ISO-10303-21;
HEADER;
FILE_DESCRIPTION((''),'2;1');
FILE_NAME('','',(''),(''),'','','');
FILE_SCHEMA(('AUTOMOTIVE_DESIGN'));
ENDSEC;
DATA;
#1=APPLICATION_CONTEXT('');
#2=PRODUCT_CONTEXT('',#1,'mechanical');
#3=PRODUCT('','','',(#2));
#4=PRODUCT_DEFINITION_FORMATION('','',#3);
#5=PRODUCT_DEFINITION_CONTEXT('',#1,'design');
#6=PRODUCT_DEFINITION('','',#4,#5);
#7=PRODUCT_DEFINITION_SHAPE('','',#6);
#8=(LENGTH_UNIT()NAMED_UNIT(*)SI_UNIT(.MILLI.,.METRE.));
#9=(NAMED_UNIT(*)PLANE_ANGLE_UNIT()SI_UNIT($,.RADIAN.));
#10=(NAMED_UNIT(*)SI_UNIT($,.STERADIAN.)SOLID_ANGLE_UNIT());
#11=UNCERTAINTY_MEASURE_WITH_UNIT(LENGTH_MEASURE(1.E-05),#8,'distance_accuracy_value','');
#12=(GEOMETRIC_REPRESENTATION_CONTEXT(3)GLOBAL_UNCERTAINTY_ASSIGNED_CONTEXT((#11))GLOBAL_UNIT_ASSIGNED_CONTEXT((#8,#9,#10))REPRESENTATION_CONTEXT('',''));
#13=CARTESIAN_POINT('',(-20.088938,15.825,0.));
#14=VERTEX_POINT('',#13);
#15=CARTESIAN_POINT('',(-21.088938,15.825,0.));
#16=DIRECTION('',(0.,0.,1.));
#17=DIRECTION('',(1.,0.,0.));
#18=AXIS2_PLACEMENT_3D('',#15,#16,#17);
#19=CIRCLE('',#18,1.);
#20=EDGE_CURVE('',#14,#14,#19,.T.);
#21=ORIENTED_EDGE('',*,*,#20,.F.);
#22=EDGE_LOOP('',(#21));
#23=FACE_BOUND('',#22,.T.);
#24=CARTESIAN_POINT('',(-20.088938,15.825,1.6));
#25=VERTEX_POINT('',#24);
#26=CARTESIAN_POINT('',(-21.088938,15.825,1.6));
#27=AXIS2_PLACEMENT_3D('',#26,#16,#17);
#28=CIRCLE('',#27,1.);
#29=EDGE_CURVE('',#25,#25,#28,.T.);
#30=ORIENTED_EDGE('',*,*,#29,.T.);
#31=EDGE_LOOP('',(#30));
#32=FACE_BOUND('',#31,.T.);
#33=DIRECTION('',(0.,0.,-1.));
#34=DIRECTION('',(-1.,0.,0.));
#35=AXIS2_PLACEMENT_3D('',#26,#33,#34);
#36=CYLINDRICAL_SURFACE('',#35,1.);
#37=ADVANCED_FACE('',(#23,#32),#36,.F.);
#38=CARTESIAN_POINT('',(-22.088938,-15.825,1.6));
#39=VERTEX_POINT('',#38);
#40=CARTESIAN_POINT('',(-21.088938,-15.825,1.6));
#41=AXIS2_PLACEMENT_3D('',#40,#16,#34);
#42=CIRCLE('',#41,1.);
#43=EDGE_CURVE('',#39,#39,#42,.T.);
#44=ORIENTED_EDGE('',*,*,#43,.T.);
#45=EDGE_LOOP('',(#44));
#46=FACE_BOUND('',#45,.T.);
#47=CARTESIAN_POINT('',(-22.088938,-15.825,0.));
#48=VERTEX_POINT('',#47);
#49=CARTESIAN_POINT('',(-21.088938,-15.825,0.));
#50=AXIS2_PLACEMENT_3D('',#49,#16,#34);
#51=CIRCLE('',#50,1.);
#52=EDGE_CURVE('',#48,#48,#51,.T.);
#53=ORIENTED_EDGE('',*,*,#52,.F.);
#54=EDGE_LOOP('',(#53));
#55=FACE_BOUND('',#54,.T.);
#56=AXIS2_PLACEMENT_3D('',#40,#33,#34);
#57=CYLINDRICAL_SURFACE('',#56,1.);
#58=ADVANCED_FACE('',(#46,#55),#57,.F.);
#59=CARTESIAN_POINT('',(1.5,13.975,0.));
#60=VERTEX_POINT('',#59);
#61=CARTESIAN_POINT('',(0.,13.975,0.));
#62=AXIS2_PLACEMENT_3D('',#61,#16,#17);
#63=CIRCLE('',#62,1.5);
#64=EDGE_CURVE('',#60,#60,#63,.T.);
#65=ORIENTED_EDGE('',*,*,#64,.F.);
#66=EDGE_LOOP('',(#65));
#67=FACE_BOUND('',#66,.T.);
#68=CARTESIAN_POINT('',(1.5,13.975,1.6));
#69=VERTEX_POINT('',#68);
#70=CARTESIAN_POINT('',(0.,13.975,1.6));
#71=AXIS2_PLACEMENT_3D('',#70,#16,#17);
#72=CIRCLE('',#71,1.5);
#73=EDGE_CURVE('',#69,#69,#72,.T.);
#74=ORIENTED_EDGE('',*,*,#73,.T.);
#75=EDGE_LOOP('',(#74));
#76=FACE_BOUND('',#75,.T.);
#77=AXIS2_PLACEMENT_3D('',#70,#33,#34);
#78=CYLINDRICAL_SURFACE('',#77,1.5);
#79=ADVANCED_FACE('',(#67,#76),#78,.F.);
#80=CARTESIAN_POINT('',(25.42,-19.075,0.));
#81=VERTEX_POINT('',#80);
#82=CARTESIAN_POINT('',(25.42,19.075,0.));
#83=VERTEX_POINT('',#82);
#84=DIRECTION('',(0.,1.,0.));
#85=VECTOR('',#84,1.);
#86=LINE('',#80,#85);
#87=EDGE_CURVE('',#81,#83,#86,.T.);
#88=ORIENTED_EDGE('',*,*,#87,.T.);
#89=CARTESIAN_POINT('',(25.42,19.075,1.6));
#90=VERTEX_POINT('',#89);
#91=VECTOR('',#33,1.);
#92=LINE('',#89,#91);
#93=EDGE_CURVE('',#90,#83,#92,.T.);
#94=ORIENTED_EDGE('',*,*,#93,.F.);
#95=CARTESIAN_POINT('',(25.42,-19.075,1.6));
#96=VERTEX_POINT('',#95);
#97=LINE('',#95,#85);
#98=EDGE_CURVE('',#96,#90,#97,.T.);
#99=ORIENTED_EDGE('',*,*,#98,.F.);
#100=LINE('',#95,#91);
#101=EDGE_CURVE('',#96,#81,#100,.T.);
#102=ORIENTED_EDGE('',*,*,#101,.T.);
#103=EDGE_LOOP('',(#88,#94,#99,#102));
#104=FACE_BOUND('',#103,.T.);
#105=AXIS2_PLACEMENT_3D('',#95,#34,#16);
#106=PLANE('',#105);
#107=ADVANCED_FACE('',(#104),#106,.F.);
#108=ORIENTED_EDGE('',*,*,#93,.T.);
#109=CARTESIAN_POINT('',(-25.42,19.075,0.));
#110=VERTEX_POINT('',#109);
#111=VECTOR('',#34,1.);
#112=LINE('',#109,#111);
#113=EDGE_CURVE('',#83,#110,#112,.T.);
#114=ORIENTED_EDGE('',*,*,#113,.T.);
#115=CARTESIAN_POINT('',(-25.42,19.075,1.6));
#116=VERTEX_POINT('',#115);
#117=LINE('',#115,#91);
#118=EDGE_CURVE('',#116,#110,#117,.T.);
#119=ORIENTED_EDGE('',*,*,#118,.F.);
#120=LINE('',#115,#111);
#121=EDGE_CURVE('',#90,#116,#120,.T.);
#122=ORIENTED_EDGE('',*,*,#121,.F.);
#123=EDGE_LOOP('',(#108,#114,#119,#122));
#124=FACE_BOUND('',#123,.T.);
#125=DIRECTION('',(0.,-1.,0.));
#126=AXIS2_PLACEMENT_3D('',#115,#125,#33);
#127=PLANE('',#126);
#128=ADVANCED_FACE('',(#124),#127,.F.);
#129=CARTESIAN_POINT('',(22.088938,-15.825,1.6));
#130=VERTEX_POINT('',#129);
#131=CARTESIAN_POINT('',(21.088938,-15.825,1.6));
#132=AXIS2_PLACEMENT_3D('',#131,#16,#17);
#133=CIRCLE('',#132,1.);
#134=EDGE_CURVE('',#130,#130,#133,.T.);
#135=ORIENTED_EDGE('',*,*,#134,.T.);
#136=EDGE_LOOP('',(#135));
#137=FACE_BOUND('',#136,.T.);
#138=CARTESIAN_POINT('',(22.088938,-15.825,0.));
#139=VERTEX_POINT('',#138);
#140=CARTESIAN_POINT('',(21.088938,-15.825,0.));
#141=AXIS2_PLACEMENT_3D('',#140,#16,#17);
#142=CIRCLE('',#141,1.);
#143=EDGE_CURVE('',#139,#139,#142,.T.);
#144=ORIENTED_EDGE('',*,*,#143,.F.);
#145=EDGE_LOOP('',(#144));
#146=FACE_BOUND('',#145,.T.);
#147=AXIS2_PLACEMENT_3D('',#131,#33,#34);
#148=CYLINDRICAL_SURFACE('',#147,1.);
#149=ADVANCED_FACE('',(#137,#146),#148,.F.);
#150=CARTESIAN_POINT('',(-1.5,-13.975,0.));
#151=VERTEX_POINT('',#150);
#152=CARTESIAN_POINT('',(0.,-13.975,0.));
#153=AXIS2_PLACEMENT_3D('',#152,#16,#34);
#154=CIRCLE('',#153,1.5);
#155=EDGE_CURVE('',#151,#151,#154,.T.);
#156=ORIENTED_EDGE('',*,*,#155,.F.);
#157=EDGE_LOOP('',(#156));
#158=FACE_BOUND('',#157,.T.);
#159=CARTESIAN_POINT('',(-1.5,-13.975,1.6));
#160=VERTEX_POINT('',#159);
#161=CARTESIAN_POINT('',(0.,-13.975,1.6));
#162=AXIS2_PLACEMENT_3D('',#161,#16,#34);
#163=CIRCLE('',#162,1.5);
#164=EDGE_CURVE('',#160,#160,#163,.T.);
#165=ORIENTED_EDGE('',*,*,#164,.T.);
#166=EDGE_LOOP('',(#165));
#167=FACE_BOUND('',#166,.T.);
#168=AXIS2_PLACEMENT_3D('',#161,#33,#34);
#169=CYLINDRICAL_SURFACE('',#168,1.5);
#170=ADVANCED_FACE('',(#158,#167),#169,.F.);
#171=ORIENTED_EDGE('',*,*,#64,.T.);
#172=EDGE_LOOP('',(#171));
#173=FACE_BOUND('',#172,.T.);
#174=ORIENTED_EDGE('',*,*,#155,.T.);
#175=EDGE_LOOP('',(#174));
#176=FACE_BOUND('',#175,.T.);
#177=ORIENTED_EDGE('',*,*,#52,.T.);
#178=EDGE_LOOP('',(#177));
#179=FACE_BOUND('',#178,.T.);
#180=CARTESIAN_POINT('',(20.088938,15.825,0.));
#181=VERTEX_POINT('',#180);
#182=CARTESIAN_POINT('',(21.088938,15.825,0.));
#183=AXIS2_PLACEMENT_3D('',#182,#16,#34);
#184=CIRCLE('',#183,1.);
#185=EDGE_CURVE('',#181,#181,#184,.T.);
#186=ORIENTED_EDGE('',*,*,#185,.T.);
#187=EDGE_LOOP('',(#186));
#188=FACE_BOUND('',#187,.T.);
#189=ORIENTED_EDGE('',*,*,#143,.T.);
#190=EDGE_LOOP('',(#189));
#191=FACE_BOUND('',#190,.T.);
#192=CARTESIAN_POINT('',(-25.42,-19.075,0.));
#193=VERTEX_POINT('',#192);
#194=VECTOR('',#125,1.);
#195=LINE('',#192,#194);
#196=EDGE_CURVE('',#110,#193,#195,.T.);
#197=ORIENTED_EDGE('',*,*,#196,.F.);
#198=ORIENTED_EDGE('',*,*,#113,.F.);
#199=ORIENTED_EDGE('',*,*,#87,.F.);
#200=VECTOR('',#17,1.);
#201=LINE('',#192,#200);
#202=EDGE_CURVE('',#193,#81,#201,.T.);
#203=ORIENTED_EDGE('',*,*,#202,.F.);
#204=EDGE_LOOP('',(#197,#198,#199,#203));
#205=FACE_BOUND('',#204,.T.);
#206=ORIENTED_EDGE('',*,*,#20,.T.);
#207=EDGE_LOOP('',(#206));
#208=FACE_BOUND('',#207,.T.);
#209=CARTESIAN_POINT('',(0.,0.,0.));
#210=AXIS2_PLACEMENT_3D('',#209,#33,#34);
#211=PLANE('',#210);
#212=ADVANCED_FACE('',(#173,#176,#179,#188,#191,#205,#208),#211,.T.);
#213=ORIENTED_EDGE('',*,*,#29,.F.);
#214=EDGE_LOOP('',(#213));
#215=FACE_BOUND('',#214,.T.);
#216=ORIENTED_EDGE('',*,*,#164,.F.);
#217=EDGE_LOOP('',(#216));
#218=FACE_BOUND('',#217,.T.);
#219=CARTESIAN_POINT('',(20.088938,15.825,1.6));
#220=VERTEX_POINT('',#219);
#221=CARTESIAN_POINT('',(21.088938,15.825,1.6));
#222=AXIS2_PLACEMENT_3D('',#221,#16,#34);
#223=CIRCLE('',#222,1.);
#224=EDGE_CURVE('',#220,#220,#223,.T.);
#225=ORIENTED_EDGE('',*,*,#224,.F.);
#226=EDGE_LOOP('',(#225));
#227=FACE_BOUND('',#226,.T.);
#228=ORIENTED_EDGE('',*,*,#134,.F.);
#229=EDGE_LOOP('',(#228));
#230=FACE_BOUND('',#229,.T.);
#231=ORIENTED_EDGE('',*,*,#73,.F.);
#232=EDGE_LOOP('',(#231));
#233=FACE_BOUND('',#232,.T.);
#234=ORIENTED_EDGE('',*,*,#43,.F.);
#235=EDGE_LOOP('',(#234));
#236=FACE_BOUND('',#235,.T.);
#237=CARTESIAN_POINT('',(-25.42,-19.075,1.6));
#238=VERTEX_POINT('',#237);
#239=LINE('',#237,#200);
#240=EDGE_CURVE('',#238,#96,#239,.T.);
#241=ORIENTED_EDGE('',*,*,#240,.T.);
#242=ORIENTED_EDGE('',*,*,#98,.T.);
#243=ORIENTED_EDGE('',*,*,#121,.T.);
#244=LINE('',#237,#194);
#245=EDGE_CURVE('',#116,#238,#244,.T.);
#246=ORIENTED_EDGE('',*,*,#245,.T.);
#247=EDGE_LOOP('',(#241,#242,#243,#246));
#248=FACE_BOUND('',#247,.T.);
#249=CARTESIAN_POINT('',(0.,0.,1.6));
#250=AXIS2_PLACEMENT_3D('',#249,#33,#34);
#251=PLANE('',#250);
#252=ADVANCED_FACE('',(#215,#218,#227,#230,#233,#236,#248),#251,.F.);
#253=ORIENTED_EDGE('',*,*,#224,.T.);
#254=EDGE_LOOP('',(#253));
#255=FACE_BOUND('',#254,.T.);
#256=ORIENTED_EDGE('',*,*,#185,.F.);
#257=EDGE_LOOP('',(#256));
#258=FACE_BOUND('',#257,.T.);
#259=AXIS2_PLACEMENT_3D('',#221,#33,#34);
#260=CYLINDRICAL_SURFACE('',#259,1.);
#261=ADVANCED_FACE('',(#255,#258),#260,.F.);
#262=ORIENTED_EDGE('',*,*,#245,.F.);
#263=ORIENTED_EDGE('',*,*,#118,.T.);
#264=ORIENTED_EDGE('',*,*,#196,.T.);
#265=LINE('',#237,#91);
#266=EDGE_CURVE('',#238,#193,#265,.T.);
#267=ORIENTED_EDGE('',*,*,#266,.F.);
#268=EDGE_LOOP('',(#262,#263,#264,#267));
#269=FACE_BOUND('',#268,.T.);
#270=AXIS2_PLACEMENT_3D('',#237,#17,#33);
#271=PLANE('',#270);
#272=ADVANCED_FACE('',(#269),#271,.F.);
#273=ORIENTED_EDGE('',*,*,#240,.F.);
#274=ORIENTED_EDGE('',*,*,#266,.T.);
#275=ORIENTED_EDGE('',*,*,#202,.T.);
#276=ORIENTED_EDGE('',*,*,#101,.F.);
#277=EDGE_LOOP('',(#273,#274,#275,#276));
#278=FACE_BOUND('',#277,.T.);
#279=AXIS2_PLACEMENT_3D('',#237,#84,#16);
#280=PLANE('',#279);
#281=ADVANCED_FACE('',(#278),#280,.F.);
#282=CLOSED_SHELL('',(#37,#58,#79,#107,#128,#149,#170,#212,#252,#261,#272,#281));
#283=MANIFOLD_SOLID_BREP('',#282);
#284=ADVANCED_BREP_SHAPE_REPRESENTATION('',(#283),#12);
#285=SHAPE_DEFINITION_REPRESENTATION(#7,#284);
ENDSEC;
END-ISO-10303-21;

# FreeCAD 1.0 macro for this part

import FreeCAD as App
import Part
import Sketcher


def add_polygon(sketch, points):
    """Adds a closed chain of lines whose ends are joined by coincident constraints."""
    first, n = sketch.GeometryCount, len(points)
    for a, b in zip(points, points[1:] + points[:1]):
        sketch.addGeometry(Part.LineSegment(App.Vector(*a, 0), App.Vector(*b, 0)), False)
    for i in range(n):
        sketch.addConstraint(Sketcher.Constraint("Coincident", first + i, 2, first + (i + 1) % n, 1))

doc = App.newDocument("Part")
body = doc.addObject("PartDesign::Body", "Body")

sketch1 = body.newObject("Sketcher::SketchObject", "Sketch")
sketch1.AttachmentSupport = (doc.getObject("XY_Plane"), [""])
sketch1.MapMode = "FlatFace"
add_polygon(sketch1, [(-25.4, 19.1), (-25.4, -19.1), (25.4, -19.1), (25.4, 19.1)])
sketch1.addGeometry(Part.Circle(App.Vector(-21.1, -15.8, 0), App.Vector(0, 0, 1), 1), False)
sketch1.addGeometry(Part.Circle(App.Vector(0, -14, 0), App.Vector(0, 0, 1), 1.5), False)
sketch1.addGeometry(Part.Circle(App.Vector(21.1, -15.8, 0), App.Vector(0, 0, 1), 1), False)
sketch1.addGeometry(Part.Circle(App.Vector(-21.1, 15.8, 0), App.Vector(0, 0, 1), 1), False)
sketch1.addGeometry(Part.Circle(App.Vector(0, 14, 0), App.Vector(0, 0, 1), 1.5), False)
sketch1.addGeometry(Part.Circle(App.Vector(21.1, 15.8, 0), App.Vector(0, 0, 1), 1), False)
sketch1.addConstraint([
    Sketcher.Constraint("Vertical", 0),
    Sketcher.Constraint("Horizontal", 1),
    Sketcher.Constraint("Vertical", 2),
    Sketcher.Constraint("Horizontal", 3),
    Sketcher.Constraint("Equal", 4, 6),
    Sketcher.Constraint("Equal", 6, 7),
    Sketcher.Constraint("Equal", 5, 8),
    Sketcher.Constraint("Equal", 7, 9),
    Sketcher.Constraint("Symmetric", 6, 3, 7, 3, -1, 1),
    Sketcher.Constraint("Symmetric", 5, 3, 8, 3, -1, 1),
    Sketcher.Constraint("Symmetric", 4, 3, 9, 3, -1, 1),
    Sketcher.Constraint("Symmetric", 0, 2, 2, 2, -1, 1),
    Sketcher.Constraint("Symmetric", 4, 3, 6, 3, -2),
    Sketcher.Constraint("PointOnObject", 5, 3, -2),
    Sketcher.Constraint("Diameter", 4, 2.0),
    Sketcher.Constraint("Diameter", 5, 3.0),
    Sketcher.Constraint("DistanceX", 1, 1, 1, 2, 50.84),
    Sketcher.Constraint("DistanceY", 0, 2, 0, 1, 38.15),
    Sketcher.Constraint("DistanceY", 5, 3, 7, 3, 29.8),
    Sketcher.Constraint("DistanceY", 0, 2, 5, 3, 5.1),
    Sketcher.Constraint("DistanceX", 4, 3, -1, 1, 21.088938),
])
pad1 = body.newObject("PartDesign::Pad", "Pad")
pad1.Profile = sketch1
pad1.Length = 1.6

doc.recompute()
